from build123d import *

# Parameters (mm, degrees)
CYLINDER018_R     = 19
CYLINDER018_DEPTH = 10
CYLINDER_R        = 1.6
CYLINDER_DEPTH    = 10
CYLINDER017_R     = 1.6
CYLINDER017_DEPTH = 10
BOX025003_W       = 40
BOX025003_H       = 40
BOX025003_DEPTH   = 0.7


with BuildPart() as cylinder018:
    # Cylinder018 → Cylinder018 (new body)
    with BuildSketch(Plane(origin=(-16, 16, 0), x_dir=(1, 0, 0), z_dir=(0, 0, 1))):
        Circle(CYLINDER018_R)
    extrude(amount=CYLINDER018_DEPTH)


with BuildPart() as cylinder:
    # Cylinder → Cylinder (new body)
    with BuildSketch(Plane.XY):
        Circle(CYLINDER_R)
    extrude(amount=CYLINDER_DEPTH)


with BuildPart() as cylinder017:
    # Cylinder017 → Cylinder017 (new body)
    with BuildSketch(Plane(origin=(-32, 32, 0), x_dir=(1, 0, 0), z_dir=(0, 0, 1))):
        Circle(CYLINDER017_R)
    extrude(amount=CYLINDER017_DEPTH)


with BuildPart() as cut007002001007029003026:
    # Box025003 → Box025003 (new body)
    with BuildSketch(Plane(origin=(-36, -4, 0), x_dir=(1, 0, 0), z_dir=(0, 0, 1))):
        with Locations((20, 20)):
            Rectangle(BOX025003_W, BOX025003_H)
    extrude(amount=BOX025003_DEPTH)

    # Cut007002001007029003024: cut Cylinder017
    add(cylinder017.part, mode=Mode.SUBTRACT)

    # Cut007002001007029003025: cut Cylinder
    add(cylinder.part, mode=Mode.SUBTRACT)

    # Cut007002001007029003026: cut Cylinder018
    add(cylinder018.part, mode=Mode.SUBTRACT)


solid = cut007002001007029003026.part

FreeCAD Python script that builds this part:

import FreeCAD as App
import Part
import Sketcher

doc = App.newDocument("Part")
body = doc.addObject("PartDesign::Body", "Body")

# Sketch on XY plane
sketch1 = body.newObject("Sketcher::SketchObject", "Sketch")
sketch1.AttachmentSupport = (doc.getObject("XY_Plane"), [""])
sketch1.MapMode = "FlatFace"
sketch1.addGeometry(Part.Circle(App.Vector(-16, 16, 0), App.Vector(0, 0, 1), 19), False)
sketch1.addConstraint([
    Sketcher.Constraint("Diameter", 0, 38.0),
    Sketcher.Constraint("DistanceX", 0, 3, -1, 1, 16.0),
    Sketcher.Constraint("DistanceY", -1, 1, 0, 3, 16.0),
])
pad1 = body.newObject("PartDesign::Pad", "Pad")
pad1.Profile = sketch1
pad1.Length = 10
body2 = doc.addObject("PartDesign::Body", "Body001")

# Sketch on XY plane
sketch2 = body2.newObject("Sketcher::SketchObject", "Sketch001")
sketch2.AttachmentSupport = (doc.getObject("XY_Plane001"), [""])
sketch2.MapMode = "FlatFace"
sketch2.addGeometry(Part.Circle(App.Vector(0, 0, 0), App.Vector(0, 0, 1), 1.6), False)
sketch2.addConstraint([
    Sketcher.Constraint("Coincident", 0, 3, -1, 1),
    Sketcher.Constraint("Diameter", 0, 3.2),
])
pad2 = body2.newObject("PartDesign::Pad", "Pad001")
pad2.Profile = sketch2
pad2.Length = 10
body3 = doc.addObject("PartDesign::Body", "Body002")

# Sketch on XY plane
sketch3 = body3.newObject("Sketcher::SketchObject", "Sketch002")
sketch3.AttachmentSupport = (doc.getObject("XY_Plane002"), [""])
sketch3.MapMode = "FlatFace"
sketch3.addGeometry(Part.Circle(App.Vector(-32, 32, 0), App.Vector(0, 0, 1), 1.6), False)
sketch3.addConstraint([
    Sketcher.Constraint("Diameter", 0, 3.2),
    Sketcher.Constraint("DistanceX", 0, 3, -1, 1, 32.0),
    Sketcher.Constraint("DistanceY", -1, 1, 0, 3, 32.0),
])
pad3 = body3.newObject("PartDesign::Pad", "Pad002")
pad3.Profile = sketch3
pad3.Length = 10
body4 = doc.addObject("PartDesign::Body", "Body003")

# Sketch on XY plane
sketch4 = body4.newObject("Sketcher::SketchObject", "Sketch003")
sketch4.AttachmentSupport = (doc.getObject("XY_Plane003"), [""])
sketch4.MapMode = "FlatFace"
sketch4.addGeometry([
    Part.LineSegment(App.Vector(-36, 36, 0), App.Vector(-36, -4, 0)),
    Part.LineSegment(App.Vector(-36, -4, 0), App.Vector(4, -4, 0)),
    Part.LineSegment(App.Vector(4, -4, 0), App.Vector(4, 36, 0)),
    Part.LineSegment(App.Vector(4, 36, 0), App.Vector(-36, 36, 0)),
], False)
sketch4.addConstraint([
    Sketcher.Constraint("Coincident", 0, 2, 1, 1),
    Sketcher.Constraint("Coincident", 1, 2, 2, 1),
    Sketcher.Constraint("Coincident", 2, 2, 3, 1),
    Sketcher.Constraint("Coincident", 3, 2, 0, 1),
    Sketcher.Constraint("Vertical", 0),
    Sketcher.Constraint("Horizontal", 1),
    Sketcher.Constraint("Vertical", 2),
    Sketcher.Constraint("Horizontal", 3),
    Sketcher.Constraint("Equal", 3, 0),
    Sketcher.Constraint("DistanceX", 1, 1, 1, 2, 40.0),
    Sketcher.Constraint("DistanceX", 0, 2, -1, 1, 36.0),
    Sketcher.Constraint("DistanceY", 0, 2, -1, 1, 4.0),
])
pad4 = body4.newObject("PartDesign::Pad", "Pad003")
pad4.Profile = sketch4
pad4.Length = 0.7
doc.recompute()

boolean = body4.newObject("PartDesign::Boolean", "Boolean")
boolean.Type = "Cut"
boolean.addObjects([body3])
doc.recompute()

boolean2 = body4.newObject("PartDesign::Boolean", "Boolean001")
boolean2.Type = "Cut"
boolean2.addObjects([body2])
doc.recompute()

boolean3 = body4.newObject("PartDesign::Boolean", "Boolean002")
boolean3.Type = "Cut"
boolean3.addObjects([body])

doc.recompute()
